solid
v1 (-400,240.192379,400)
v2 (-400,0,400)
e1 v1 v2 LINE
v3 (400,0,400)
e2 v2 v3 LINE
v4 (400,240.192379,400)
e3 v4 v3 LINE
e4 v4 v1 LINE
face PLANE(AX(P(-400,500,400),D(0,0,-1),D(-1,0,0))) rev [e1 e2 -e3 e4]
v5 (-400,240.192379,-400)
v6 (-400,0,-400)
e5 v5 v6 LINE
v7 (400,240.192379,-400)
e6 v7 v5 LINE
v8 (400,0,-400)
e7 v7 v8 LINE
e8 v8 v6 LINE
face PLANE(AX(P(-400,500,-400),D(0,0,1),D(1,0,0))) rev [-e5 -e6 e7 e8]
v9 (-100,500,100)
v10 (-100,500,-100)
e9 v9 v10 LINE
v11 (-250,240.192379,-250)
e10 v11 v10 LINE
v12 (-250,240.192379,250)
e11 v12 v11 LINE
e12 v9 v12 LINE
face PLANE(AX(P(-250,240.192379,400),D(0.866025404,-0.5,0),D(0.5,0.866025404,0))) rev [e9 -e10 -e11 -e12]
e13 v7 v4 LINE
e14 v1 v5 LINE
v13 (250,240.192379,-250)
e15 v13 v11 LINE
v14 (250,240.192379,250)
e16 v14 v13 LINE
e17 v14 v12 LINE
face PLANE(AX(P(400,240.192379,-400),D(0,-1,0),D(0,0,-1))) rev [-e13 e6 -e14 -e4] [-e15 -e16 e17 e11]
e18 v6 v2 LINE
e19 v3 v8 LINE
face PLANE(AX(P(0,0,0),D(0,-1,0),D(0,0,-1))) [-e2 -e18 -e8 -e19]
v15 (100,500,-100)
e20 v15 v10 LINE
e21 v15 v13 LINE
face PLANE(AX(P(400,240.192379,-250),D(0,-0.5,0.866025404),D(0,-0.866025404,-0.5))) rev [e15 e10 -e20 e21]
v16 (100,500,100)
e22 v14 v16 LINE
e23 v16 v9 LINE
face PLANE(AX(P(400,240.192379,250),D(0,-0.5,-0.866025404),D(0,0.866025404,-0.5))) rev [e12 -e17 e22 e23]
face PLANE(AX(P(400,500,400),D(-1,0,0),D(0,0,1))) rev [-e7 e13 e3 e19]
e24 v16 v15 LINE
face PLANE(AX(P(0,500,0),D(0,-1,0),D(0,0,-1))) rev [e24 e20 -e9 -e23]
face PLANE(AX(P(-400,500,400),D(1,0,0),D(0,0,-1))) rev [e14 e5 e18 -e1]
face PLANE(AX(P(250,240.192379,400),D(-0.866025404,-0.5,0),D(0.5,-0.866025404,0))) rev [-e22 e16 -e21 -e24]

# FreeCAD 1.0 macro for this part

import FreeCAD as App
import Part
import Sketcher
from FreeCAD import Vector
Q = App.Units.Quantity


def add_polygon(sketch, points):
    """Adds a closed chain of lines whose ends are joined by coincident constraints."""
    first, n = sketch.GeometryCount, len(points)
    for a, b in zip(points, points[1:] + points[:1]):
        sketch.addGeometry(Part.LineSegment(App.Vector(*a, 0), App.Vector(*b, 0)), False)
    for i in range(n):
        sketch.addConstraint(Sketcher.Constraint("Coincident", first + i, 2, first + (i + 1) % n, 1))

doc = App.newDocument("Part")
body = doc.addObject("PartDesign::Body", "Body")

# Sketch on XZ plane
sketch1 = doc.addObject("Sketcher::SketchObject", "Sketch")
body.addObject(sketch1)
sketch1.AttachmentSupport = (doc.XZ_Plane, [""])
sketch1.MapMode = "FlatFace"
add_polygon(sketch1, [(-400, -400), (-400, 400), (400, 400), (400, -400)])  # lines 0-3
sketch1.addConstraint(Sketcher.Constraint("Vertical", 0))
sketch1.addConstraint(Sketcher.Constraint("Horizontal", 1))
sketch1.addConstraint(Sketcher.Constraint("Vertical", 2))
sketch1.addConstraint(Sketcher.Constraint("Horizontal", 3))
sketch1.addConstraint(Sketcher.Constraint("Symmetric", 0, 2, 2, 2, -1, 1))
sketch1.addConstraint(Sketcher.Constraint("Equal", 3, 0))
sketch1.addConstraint(Sketcher.Constraint("DistanceX", 1, 1, 1, 2, 800.0))
pad1 = doc.addObject("PartDesign::Pad", "Pad")
body.addObject(pad1)
pad1.Profile = sketch1
pad1.Length = 500
pad1.Reversed = True

# Sketch on YZ plane
sketch2 = doc.addObject("Sketcher::SketchObject", "Sketch001")
body.addObject(sketch2)
sketch2.AttachmentSupport = (doc.YZ_Plane, [""])
sketch2.MapMode = "FlatFace"
sketch2.AttachmentOffset = App.Placement(Vector(0, 0, -400), App.Rotation())
add_polygon(sketch2, [(240, -400), (240, -250), (500, -100), (500, -400)])  # lines 0-3
add_polygon(sketch2, [(500, 100), (240, 250), (240, 400), (500, 400)])  # lines 4-7
sketch2.addConstraint(Sketcher.Constraint("Vertical", 0))
sketch2.addConstraint(Sketcher.Constraint("Vertical", 2))
sketch2.addConstraint(Sketcher.Constraint("Horizontal", 3))
sketch2.addConstraint(Sketcher.Constraint("Vertical", 5))
sketch2.addConstraint(Sketcher.Constraint("Horizontal", 6))
sketch2.addConstraint(Sketcher.Constraint("Vertical", 7))
sketch2.addConstraint(Sketcher.Constraint("Symmetric", 0, 2, 4, 2, -1))
sketch2.addConstraint(Sketcher.Constraint("Symmetric", 2, 2, 6, 2, -1))
sketch2.addConstraint(Sketcher.Constraint("Equal", 2, 7))
sketch2.addConstraint(Sketcher.Constraint("DistanceY", 0, 1, 0, 2, 150.0))
sketch2.addConstraint(Sketcher.Constraint("DistanceY", 2, 2, 2, 1, 300.0))
sketch2.addConstraint(Sketcher.Constraint("Angle", 1, Q("30 deg")))
sketch2.addConstraint(Sketcher.Constraint("DistanceY", 0, 2, -1, 1, 250.0))
sketch2.addConstraint(Sketcher.Constraint("DistanceX", -1, 1, 1, 2, 500.0))
pocket1 = doc.addObject("PartDesign::Pocket", "Pocket")
body.addObject(pocket1)
pocket1.Profile = sketch2
pocket1.Type = "ThroughAll"
pocket1.Midplane = True

# Sketch on XY plane
sketch3 = doc.addObject("Sketcher::SketchObject", "Sketch002")
body.addObject(sketch3)
sketch3.AttachmentSupport = (doc.XY_Plane, [""])
sketch3.MapMode = "FlatFace"
sketch3.AttachmentOffset = App.Placement(Vector(0, 0, -400), App.Rotation())
add_polygon(sketch3, [(400, 240), (250, 240), (100, 500), (400, 500)])  # lines 0-3
add_polygon(sketch3, [(-100, 500), (-250, 240), (-400, 240), (-400, 500)])  # lines 4-7
sketch3.addConstraint(Sketcher.Constraint("Horizontal", 0))
sketch3.addConstraint(Sketcher.Constraint("Horizontal", 2))
sketch3.addConstraint(Sketcher.Constraint("Vertical", 3))
sketch3.addConstraint(Sketcher.Constraint("Horizontal", 5))
sketch3.addConstraint(Sketcher.Constraint("Vertical", 6))
sketch3.addConstraint(Sketcher.Constraint("Horizontal", 7))
sketch3.addConstraint(Sketcher.Constraint("Symmetric", 0, 2, 4, 2, -2))
sketch3.addConstraint(Sketcher.Constraint("Symmetric", 2, 2, 6, 2, -2))
sketch3.addConstraint(Sketcher.Constraint("Equal", 2, 7))
sketch3.addConstraint(Sketcher.Constraint("DistanceX", 0, 2, 0, 1, 150.0))
sketch3.addConstraint(Sketcher.Constraint("DistanceX", 2, 1, 2, 2, 300.0))
sketch3.addConstraint(Sketcher.Constraint("Angle", 1, Q("120 deg")))
sketch3.addConstraint(Sketcher.Constraint("DistanceX", -1, 1, 0, 2, 250.0))
sketch3.addConstraint(Sketcher.Constraint("DistanceY", -1, 1, 1, 2, 500.0))
pocket2 = doc.addObject("PartDesign::Pocket", "Pocket001")
body.addObject(pocket2)
pocket2.Profile = sketch3
pocket2.Type = "ThroughAll"
pocket2.Midplane = True

doc.recompute()
